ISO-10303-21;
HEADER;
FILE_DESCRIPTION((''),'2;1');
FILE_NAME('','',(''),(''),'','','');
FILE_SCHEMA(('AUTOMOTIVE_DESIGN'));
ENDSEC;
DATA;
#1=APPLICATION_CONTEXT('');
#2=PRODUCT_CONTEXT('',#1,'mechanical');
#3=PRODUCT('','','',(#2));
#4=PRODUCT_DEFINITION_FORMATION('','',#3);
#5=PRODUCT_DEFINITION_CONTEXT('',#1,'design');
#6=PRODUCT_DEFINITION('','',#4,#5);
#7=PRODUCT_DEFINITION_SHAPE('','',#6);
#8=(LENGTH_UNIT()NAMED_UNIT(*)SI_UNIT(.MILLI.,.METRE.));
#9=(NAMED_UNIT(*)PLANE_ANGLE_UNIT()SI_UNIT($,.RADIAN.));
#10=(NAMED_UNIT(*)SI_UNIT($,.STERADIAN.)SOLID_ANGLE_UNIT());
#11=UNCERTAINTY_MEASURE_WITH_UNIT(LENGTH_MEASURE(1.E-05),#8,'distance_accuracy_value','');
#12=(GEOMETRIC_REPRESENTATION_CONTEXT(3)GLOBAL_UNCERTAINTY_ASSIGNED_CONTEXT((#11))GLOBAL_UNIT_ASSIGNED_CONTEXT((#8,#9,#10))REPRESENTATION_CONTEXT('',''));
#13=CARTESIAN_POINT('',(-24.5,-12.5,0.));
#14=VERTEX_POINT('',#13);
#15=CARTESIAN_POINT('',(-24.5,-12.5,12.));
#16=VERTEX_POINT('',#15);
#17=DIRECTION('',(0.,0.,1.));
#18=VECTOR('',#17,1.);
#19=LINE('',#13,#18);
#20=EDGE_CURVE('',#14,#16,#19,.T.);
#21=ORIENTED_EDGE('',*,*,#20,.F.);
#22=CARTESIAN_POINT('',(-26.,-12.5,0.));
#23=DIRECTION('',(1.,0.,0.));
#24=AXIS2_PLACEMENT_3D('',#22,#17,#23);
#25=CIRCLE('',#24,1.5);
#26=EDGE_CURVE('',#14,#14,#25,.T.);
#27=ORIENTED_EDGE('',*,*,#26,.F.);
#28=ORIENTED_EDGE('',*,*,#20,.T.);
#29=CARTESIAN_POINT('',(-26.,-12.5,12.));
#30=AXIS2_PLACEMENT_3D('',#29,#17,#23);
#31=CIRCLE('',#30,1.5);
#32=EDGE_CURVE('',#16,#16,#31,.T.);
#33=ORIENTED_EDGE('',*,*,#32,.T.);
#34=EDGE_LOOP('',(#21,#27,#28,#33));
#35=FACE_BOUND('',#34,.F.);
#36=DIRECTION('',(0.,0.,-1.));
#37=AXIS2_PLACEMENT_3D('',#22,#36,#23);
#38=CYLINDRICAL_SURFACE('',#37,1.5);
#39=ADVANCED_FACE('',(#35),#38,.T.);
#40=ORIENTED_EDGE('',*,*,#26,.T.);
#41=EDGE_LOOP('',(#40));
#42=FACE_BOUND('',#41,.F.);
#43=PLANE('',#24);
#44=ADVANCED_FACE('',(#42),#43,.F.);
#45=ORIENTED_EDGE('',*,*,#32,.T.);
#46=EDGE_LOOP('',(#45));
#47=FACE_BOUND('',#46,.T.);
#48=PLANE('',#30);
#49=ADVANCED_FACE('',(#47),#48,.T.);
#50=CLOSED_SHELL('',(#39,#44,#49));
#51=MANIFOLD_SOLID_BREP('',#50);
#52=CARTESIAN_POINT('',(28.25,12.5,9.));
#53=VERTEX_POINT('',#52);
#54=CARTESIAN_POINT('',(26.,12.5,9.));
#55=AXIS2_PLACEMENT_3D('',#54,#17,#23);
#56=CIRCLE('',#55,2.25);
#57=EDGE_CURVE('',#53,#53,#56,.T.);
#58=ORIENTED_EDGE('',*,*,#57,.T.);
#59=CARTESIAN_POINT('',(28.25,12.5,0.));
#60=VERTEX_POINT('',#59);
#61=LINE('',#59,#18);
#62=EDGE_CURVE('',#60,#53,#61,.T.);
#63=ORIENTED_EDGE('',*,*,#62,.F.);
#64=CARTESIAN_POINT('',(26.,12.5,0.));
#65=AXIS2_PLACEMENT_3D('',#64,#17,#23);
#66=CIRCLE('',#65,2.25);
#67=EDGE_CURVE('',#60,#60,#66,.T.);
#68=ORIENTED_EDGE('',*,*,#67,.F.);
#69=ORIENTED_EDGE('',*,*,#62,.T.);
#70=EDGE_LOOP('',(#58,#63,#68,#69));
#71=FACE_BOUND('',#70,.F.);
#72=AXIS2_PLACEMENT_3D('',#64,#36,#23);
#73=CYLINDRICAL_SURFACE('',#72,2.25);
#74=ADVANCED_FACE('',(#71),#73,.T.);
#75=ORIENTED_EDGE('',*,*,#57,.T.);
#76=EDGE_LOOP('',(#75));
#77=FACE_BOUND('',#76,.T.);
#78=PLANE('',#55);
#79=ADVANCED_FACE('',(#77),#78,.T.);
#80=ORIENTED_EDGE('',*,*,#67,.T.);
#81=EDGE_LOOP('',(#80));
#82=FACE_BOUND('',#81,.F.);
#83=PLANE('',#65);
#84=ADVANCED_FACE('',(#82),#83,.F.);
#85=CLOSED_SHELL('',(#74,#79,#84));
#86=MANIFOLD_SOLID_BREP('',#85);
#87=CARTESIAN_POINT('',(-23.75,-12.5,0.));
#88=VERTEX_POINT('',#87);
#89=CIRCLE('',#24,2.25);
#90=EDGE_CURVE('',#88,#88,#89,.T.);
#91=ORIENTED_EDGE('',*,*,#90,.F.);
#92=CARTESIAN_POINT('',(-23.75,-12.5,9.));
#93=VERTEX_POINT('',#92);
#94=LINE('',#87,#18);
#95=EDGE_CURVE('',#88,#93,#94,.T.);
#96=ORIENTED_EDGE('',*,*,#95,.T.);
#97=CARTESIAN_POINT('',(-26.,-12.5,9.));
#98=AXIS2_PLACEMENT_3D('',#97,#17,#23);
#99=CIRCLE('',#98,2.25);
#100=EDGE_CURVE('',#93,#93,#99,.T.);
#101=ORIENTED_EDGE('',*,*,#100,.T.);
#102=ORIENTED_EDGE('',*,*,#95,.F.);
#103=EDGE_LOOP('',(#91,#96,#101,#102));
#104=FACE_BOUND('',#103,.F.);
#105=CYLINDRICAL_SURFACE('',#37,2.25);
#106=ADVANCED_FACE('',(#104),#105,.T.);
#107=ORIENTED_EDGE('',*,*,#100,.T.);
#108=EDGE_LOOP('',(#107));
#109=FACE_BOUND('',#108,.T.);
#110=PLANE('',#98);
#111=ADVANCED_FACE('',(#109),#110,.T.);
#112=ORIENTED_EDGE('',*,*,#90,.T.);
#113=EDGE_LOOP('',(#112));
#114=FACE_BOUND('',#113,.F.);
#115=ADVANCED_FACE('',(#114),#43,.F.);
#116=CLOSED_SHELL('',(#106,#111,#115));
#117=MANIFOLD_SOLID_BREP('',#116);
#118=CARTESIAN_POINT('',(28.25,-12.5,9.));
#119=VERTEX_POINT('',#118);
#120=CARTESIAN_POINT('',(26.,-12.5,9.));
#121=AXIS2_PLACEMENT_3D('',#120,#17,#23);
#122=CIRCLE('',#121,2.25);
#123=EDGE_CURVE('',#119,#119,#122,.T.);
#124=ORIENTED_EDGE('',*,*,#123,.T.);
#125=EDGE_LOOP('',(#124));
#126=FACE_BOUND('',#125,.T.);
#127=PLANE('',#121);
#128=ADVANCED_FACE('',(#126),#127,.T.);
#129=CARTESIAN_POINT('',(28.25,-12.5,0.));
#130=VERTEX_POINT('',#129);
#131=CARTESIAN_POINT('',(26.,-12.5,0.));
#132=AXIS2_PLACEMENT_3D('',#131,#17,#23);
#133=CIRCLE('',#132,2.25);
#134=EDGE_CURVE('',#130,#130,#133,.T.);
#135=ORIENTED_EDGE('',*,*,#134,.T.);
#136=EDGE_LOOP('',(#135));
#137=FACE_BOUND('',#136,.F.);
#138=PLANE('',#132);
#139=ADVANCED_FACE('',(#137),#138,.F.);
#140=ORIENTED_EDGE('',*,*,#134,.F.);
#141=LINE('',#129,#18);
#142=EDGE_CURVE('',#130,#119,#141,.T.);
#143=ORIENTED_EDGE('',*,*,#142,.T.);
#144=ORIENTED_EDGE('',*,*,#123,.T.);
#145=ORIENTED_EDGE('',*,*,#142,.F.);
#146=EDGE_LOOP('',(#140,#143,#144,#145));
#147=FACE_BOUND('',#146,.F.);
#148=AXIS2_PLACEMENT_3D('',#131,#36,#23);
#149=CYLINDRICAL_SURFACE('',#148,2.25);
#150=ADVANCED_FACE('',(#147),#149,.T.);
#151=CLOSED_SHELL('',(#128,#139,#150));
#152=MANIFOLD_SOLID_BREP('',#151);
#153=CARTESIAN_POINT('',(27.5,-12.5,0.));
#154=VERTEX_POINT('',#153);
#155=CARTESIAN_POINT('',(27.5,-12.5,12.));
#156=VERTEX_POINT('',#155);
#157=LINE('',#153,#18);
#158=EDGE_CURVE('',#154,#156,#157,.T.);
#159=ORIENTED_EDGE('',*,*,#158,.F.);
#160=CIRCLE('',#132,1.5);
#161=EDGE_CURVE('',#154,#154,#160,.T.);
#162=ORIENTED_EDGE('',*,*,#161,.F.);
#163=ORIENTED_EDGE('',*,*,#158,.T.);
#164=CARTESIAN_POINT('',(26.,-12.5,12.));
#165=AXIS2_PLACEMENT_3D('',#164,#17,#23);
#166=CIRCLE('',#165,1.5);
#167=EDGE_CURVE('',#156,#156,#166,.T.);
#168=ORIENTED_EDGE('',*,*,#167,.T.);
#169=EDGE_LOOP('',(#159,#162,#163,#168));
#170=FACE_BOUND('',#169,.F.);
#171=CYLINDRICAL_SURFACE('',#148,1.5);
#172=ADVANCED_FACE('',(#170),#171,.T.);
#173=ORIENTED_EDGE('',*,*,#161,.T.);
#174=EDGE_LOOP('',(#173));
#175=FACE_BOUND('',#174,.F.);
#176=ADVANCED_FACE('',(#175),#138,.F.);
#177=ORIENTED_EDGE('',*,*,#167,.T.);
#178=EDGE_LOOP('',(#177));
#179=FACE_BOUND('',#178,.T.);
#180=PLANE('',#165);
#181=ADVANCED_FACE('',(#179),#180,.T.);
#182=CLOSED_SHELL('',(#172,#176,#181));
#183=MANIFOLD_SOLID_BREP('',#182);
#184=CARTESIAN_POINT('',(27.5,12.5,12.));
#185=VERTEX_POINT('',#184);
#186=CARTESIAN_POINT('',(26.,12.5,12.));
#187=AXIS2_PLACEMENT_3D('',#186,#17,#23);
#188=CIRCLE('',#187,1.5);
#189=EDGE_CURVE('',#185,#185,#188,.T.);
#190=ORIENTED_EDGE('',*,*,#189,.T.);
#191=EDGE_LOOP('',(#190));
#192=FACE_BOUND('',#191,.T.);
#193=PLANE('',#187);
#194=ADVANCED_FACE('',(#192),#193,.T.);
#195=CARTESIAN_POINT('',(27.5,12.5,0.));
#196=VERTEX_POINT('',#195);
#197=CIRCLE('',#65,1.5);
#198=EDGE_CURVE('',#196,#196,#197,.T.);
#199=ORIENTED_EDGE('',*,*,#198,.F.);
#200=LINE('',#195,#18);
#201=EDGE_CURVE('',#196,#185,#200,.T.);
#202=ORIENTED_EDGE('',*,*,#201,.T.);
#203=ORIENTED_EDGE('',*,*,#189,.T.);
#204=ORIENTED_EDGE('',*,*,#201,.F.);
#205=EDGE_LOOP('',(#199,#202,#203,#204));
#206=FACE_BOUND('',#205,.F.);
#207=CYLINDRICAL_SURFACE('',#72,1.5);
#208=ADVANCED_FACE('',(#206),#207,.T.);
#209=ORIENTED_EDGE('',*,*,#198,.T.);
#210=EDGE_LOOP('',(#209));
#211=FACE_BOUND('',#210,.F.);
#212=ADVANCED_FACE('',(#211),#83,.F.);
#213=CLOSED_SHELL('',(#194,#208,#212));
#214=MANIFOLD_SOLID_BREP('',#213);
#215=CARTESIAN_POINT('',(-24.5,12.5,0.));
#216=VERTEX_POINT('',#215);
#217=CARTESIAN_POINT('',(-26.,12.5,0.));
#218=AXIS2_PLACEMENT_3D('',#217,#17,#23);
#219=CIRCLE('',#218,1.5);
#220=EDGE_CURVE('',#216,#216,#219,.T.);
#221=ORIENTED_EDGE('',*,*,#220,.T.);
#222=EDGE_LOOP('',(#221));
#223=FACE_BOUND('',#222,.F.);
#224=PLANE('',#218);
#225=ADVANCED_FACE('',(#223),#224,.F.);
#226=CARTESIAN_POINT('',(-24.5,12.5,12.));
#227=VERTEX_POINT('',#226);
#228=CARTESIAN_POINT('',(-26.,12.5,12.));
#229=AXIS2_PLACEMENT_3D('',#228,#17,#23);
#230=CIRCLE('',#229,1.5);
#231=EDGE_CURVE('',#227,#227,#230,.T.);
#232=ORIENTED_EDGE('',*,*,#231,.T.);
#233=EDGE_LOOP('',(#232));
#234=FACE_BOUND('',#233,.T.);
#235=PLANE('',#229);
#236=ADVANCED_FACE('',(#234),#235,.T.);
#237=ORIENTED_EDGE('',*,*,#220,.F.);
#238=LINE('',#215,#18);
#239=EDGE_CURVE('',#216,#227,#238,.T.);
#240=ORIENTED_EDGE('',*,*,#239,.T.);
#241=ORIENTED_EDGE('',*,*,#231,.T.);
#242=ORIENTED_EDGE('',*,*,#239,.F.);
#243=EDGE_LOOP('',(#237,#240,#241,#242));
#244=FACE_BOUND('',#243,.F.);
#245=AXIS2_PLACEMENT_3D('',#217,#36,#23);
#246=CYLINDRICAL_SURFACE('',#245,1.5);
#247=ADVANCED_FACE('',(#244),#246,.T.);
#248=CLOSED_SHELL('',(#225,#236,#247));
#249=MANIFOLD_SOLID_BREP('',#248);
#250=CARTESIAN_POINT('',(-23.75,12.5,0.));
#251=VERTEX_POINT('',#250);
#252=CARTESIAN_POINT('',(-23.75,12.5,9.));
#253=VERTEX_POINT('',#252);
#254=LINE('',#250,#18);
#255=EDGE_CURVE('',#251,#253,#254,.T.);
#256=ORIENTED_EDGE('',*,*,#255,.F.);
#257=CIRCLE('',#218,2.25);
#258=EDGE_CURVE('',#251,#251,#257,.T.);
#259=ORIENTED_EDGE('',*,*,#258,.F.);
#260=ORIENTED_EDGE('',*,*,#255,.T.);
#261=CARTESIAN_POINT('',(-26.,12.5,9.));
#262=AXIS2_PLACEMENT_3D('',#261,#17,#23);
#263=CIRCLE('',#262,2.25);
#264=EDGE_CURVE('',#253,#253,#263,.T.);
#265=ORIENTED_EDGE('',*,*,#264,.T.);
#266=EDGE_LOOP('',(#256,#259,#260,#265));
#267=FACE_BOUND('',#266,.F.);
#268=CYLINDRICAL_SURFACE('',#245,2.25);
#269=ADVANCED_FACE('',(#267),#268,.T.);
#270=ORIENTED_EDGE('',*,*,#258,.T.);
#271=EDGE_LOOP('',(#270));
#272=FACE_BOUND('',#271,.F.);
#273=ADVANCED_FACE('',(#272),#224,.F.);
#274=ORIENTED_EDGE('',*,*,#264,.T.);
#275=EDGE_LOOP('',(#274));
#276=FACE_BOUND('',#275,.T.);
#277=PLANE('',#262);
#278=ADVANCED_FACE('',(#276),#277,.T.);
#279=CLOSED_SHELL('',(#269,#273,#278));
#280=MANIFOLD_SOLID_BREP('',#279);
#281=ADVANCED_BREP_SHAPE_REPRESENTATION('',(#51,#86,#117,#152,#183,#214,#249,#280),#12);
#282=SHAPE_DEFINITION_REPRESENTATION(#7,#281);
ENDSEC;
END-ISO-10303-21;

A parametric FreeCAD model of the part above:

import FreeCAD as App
import Part
import Sketcher
from FreeCAD import Vector
Q = App.Units.Quantity

doc = App.newDocument("Part")
body = doc.addObject("PartDesign::Body", "Body")
body.AllowCompound = True

# Sketch on XY plane
sketch1 = body.newObject("Sketcher::SketchObject", "Sketch")
sketch1.AttachmentSupport = (doc.getObject("XY_Plane"), [""])
sketch1.MapMode = "FlatFace"
sketch1.addGeometry([
    Part.Circle(Vector(-26, 12.5, 0), Vector(0, 0, 1), 2.25),
    Part.Circle(Vector(-26, -12.5, 0), Vector(0, 0, 1), 2.25),
    Part.Circle(Vector(26, 12.5, 0), Vector(0, 0, 1), 2.25),
    Part.Circle(Vector(26, -12.5, 0), Vector(0, 0, 1), 2.25),
], False)
sketch1.addConstraint([
    Sketcher.Constraint("Equal", 0, 1),
    Sketcher.Constraint("Equal", 1, 2),
    Sketcher.Constraint("Equal", 2, 3),
    Sketcher.Constraint("Symmetric", 1, 3, 2, 3, -1, 1),
    Sketcher.Constraint("Symmetric", 0, 3, 3, 3, -1, 1),
    Sketcher.Constraint("Symmetric", 0, 3, 2, 3, -2),
    Sketcher.Constraint("Diameter", 0, Q("4.5 mm")),
    Sketcher.Constraint("DistanceX", 0, 3, -1, 1, Q("26 mm")),
    Sketcher.Constraint("DistanceY", 1, 3, 0, 3, Q("25 mm")),
])
pad1 = body.newObject("PartDesign::Pad", "Pad")
pad1.Profile = sketch1
pad1.Length = 9
body2 = doc.addObject("PartDesign::Body", "Body001")
body2.AllowCompound = True

# Sketch on XY plane
sketch2 = body2.newObject("Sketcher::SketchObject", "Sketch001")
sketch2.AttachmentSupport = (doc.getObject("XY_Plane001"), [""])
sketch2.MapMode = "FlatFace"
sketch2.addGeometry([
    Part.Circle(Vector(-26, 12.5, 0), Vector(0, 0, 1), 1.5),
    Part.Circle(Vector(-26, -12.5, 0), Vector(0, 0, 1), 1.5),
    Part.Circle(Vector(26, 12.5, 0), Vector(0, 0, 1), 1.5),
    Part.Circle(Vector(26, -12.5, 0), Vector(0, 0, 1), 1.5),
], False)
sketch2.addConstraint([
    Sketcher.Constraint("Equal", 0, 1),
    Sketcher.Constraint("Equal", 1, 2),
    Sketcher.Constraint("Equal", 2, 3),
    Sketcher.Constraint("Symmetric", 1, 3, 2, 3, -1, 1),
    Sketcher.Constraint("Symmetric", 0, 3, 3, 3, -1, 1),
    Sketcher.Constraint("Symmetric", 0, 3, 2, 3, -2),
    Sketcher.Constraint("Diameter", 0, Q("3 mm")),
    Sketcher.Constraint("DistanceX", 0, 3, -1, 1, Q("26 mm")),
    Sketcher.Constraint("DistanceY", 1, 3, 0, 3, Q("25 mm")),
])
pad2 = body2.newObject("PartDesign::Pad", "Pad001")
pad2.Profile = sketch2
pad2.Length = 12

doc.recompute()
